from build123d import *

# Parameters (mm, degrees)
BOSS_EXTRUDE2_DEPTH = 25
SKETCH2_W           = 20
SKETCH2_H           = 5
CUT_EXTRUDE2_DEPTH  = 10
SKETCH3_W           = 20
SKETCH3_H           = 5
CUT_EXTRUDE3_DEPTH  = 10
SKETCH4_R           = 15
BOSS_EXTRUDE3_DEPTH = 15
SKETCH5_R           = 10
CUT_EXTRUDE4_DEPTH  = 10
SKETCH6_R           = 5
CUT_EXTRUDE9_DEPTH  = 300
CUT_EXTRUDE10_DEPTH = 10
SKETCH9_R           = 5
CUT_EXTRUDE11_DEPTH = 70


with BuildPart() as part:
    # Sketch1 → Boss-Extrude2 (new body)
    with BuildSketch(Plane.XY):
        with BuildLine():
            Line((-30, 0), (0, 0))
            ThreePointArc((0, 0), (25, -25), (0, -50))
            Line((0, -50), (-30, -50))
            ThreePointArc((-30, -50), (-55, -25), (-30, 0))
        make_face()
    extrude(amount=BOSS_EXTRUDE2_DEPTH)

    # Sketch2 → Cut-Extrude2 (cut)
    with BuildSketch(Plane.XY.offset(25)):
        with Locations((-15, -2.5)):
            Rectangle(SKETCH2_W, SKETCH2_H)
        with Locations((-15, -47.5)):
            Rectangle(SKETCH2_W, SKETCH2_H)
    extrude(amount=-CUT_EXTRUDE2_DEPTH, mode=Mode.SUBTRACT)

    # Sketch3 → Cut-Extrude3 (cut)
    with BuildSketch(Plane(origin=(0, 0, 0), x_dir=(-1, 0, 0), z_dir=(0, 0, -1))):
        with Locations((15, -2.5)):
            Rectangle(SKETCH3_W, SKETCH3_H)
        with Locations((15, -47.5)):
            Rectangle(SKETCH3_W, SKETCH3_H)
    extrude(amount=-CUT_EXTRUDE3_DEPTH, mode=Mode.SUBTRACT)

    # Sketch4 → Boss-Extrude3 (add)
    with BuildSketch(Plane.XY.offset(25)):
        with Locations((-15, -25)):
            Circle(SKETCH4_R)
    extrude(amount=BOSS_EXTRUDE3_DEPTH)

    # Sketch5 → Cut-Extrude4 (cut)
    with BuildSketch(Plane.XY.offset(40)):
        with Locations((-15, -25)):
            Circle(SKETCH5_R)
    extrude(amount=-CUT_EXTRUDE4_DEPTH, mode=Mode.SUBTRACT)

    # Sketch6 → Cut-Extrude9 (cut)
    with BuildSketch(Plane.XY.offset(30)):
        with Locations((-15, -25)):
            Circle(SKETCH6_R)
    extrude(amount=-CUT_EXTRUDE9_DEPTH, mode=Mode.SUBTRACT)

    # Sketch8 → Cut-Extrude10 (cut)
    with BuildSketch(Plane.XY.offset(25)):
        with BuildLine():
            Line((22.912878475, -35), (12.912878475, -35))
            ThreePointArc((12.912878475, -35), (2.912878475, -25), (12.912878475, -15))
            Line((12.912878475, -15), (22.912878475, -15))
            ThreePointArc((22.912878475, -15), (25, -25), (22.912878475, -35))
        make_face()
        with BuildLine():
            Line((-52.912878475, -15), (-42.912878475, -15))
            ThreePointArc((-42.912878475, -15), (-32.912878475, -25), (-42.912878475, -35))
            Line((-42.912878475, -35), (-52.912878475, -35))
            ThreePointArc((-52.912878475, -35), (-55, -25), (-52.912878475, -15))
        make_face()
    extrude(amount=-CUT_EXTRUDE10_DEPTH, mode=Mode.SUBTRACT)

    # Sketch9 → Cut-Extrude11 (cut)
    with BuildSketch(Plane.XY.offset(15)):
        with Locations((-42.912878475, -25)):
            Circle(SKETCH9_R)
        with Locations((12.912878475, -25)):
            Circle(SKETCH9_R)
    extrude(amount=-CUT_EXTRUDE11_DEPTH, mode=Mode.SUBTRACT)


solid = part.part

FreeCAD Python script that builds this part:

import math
import FreeCAD as App
import Part
import Sketcher
from FreeCAD import Vector

doc = App.newDocument("Part")
body = doc.addObject("PartDesign::Body", "Body")

# Sketch on XY plane
sketch1 = body.newObject("Sketcher::SketchObject", "Sketch")
sketch1.AttachmentSupport = (doc.getObject("XY_Plane"), [""])
sketch1.MapMode = "FlatFace"
sketch1.addGeometry([
    Part.LineSegment(Vector(0, 0, 0), Vector(-30, 0, 0)),
    Part.ArcOfCircle(Part.Circle(Vector(-30, -25, 0), Vector(0, 0, 1), 25), math.radians(90), math.radians(270)),
    Part.LineSegment(Vector(-30, -50, 0), Vector(0, -50, 0)),
    Part.ArcOfCircle(Part.Circle(Vector(0, -25, 0), Vector(0, 0, 1), 25), math.radians(-90), math.radians(90)),
], False)
sketch1.addConstraint([
    Sketcher.Constraint("Tangent", 0, 2, 1, 1),
    Sketcher.Constraint("Tangent", 1, 2, 2, 1),
    Sketcher.Constraint("Tangent", 2, 2, 3, 1),
    Sketcher.Constraint("Tangent", 3, 2, 0, 1),
    Sketcher.Constraint("Horizontal", 0),
    Sketcher.Constraint("Horizontal", 2),
    Sketcher.Constraint("Coincident", 3, 2, -1, 1),
    Sketcher.Constraint("Radius", 1, 25.0),
    Sketcher.Constraint("DistanceX", 0, 2, 0, 1, 30.0),
])
pad1 = body.newObject("PartDesign::Pad", "Pad")
pad1.Profile = sketch1
pad1.Length = 25

# Sketch on XY plane
sketch2 = body.newObject("Sketcher::SketchObject", "Sketch001")
sketch2.AttachmentSupport = (doc.getObject("XY_Plane"), [""])
sketch2.MapMode = "FlatFace"
sketch2.AttachmentOffset = App.Placement(Vector(0, 0, 25), App.Rotation())
sketch2.addGeometry([
    Part.LineSegment(Vector(-25, 0, 0), Vector(-25, -5, 0)),  # 0
    Part.LineSegment(Vector(-25, -5, 0), Vector(-5, -5, 0)),  # 1
    Part.LineSegment(Vector(-5, -5, 0), Vector(-5, 0, 0)),  # 2
    Part.LineSegment(Vector(-5, 0, 0), Vector(-25, 0, 0)),  # 3
    Part.LineSegment(Vector(-25, -45, 0), Vector(-25, -50, 0)),  # 4
    Part.LineSegment(Vector(-25, -50, 0), Vector(-5, -50, 0)),  # 5
    Part.LineSegment(Vector(-5, -50, 0), Vector(-5, -45, 0)),  # 6
    Part.LineSegment(Vector(-5, -45, 0), Vector(-25, -45, 0)),  # 7
], False)
sketch2.addConstraint([
    Sketcher.Constraint("Coincident", 0, 2, 1, 1),
    Sketcher.Constraint("Coincident", 1, 2, 2, 1),
    Sketcher.Constraint("Coincident", 2, 2, 3, 1),
    Sketcher.Constraint("Coincident", 3, 2, 0, 1),
    Sketcher.Constraint("Coincident", 4, 2, 5, 1),
    Sketcher.Constraint("Coincident", 5, 2, 6, 1),
    Sketcher.Constraint("Coincident", 6, 2, 7, 1),
    Sketcher.Constraint("Coincident", 7, 2, 4, 1),
    Sketcher.Constraint("Vertical", 0),
    Sketcher.Constraint("Horizontal", 1),
    Sketcher.Constraint("Vertical", 2),
    Sketcher.Constraint("Horizontal", 3),
    Sketcher.Constraint("Vertical", 4),
    Sketcher.Constraint("Horizontal", 5),
    Sketcher.Constraint("Vertical", 6),
    Sketcher.Constraint("Horizontal", 7),
    Sketcher.Constraint("PointOnObject", 2, 2, -1),
    Sketcher.Constraint("Vertical", 3, 2, 4, 2),
    Sketcher.Constraint("Vertical", 2, 2, 5, 2),
    Sketcher.Constraint("Equal", 2, 4),
    Sketcher.Constraint("DistanceX", 1, 1, 1, 2, 20.0),
    Sketcher.Constraint("DistanceY", 0, 2, 0, 1, 5.0),
    Sketcher.Constraint("DistanceX", 0, 2, -1, 1, 25.0),
    Sketcher.Constraint("DistanceY", 4, 2, -1, 1, 50.0),
])
pocket1 = body.newObject("PartDesign::Pocket", "Pocket")
pocket1.Profile = sketch2
pocket1.Length = 10

# Sketch on XY plane
sketch3 = body.newObject("Sketcher::SketchObject", "Sketch002")
sketch3.AttachmentSupport = (doc.getObject("XY_Plane"), [""])
sketch3.MapMode = "FlatFace"
sketch3.addGeometry([
    Part.LineSegment(Vector(-5, 0, 0), Vector(-5, -5, 0)),  # 0
    Part.LineSegment(Vector(-5, -5, 0), Vector(-25, -5, 0)),  # 1
    Part.LineSegment(Vector(-25, -5, 0), Vector(-25, 0, 0)),  # 2
    Part.LineSegment(Vector(-25, 0, 0), Vector(-5, 0, 0)),  # 3
    Part.LineSegment(Vector(-5, -45, 0), Vector(-5, -50, 0)),  # 4
    Part.LineSegment(Vector(-5, -50, 0), Vector(-25, -50, 0)),  # 5
    Part.LineSegment(Vector(-25, -50, 0), Vector(-25, -45, 0)),  # 6
    Part.LineSegment(Vector(-25, -45, 0), Vector(-5, -45, 0)),  # 7
], False)
sketch3.addConstraint([
    Sketcher.Constraint("Coincident", 0, 2, 1, 1),
    Sketcher.Constraint("Coincident", 1, 2, 2, 1),
    Sketcher.Constraint("Coincident", 2, 2, 3, 1),
    Sketcher.Constraint("Coincident", 3, 2, 0, 1),
    Sketcher.Constraint("Coincident", 4, 2, 5, 1),
    Sketcher.Constraint("Coincident", 5, 2, 6, 1),
    Sketcher.Constraint("Coincident", 6, 2, 7, 1),
    Sketcher.Constraint("Coincident", 7, 2, 4, 1),
    Sketcher.Constraint("Vertical", 0),
    Sketcher.Constraint("Horizontal", 1),
    Sketcher.Constraint("Vertical", 2),
    Sketcher.Constraint("Horizontal", 3),
    Sketcher.Constraint("Vertical", 4),
    Sketcher.Constraint("Horizontal", 5),
    Sketcher.Constraint("Vertical", 6),
    Sketcher.Constraint("Horizontal", 7),
    Sketcher.Constraint("PointOnObject", 2, 2, -1),
    Sketcher.Constraint("Vertical", 3, 2, 4, 2),
    Sketcher.Constraint("Vertical", 2, 2, 5, 2),
    Sketcher.Constraint("Equal", 2, 4),
    Sketcher.Constraint("DistanceX", 1, 2, 1, 1, 20.0),
    Sketcher.Constraint("DistanceY", 0, 2, 0, 1, 5.0),
    Sketcher.Constraint("DistanceX", 0, 2, -1, 1, 5.0),
    Sketcher.Constraint("DistanceY", 4, 2, -1, 1, 50.0),
])
pocket2 = body.newObject("PartDesign::Pocket", "Pocket001")
pocket2.Profile = sketch3
pocket2.Length = 10
pocket2.Reversed = True

# Sketch on XY plane
sketch4 = body.newObject("Sketcher::SketchObject", "Sketch003")
sketch4.AttachmentSupport = (doc.getObject("XY_Plane"), [""])
sketch4.MapMode = "FlatFace"
sketch4.AttachmentOffset = App.Placement(Vector(0, 0, 25), App.Rotation())
sketch4.addGeometry(Part.Circle(Vector(-15, -25, 0), Vector(0, 0, 1), 15), False)
sketch4.addConstraint([
    Sketcher.Constraint("Diameter", 0, 30.0),
    Sketcher.Constraint("DistanceX", 0, 3, -1, 1, 15.0),
    Sketcher.Constraint("DistanceY", 0, 3, -1, 1, 25.0),
])
pad2 = body.newObject("PartDesign::Pad", "Pad001")
pad2.Profile = sketch4
pad2.Length = 15

# Sketch on XY plane
sketch5 = body.newObject("Sketcher::SketchObject", "Sketch004")
sketch5.AttachmentSupport = (doc.getObject("XY_Plane"), [""])
sketch5.MapMode = "FlatFace"
sketch5.AttachmentOffset = App.Placement(Vector(0, 0, 40), App.Rotation())
sketch5.addGeometry(Part.Circle(Vector(-15, -25, 0), Vector(0, 0, 1), 10), False)
sketch5.addConstraint([
    Sketcher.Constraint("Diameter", 0, 20.0),
    Sketcher.Constraint("DistanceX", 0, 3, -1, 1, 15.0),
    Sketcher.Constraint("DistanceY", 0, 3, -1, 1, 25.0),
])
pocket3 = body.newObject("PartDesign::Pocket", "Pocket002")
pocket3.Profile = sketch5
pocket3.Length = 10

# Sketch on XY plane
sketch6 = body.newObject("Sketcher::SketchObject", "Sketch005")
sketch6.AttachmentSupport = (doc.getObject("XY_Plane"), [""])
sketch6.MapMode = "FlatFace"
sketch6.AttachmentOffset = App.Placement(Vector(0, 0, 30), App.Rotation())
sketch6.addGeometry(Part.Circle(Vector(-15, -25, 0), Vector(0, 0, 1), 5), False)
sketch6.addConstraint([
    Sketcher.Constraint("Diameter", 0, 10.0),
    Sketcher.Constraint("DistanceX", 0, 3, -1, 1, 15.0),
    Sketcher.Constraint("DistanceY", 0, 3, -1, 1, 25.0),
])
pocket4 = body.newObject("PartDesign::Pocket", "Pocket003")
pocket4.Profile = sketch6
pocket4.Length = 300

# Sketch on XY plane
sketch7 = body.newObject("Sketcher::SketchObject", "Sketch006")
sketch7.AttachmentSupport = (doc.getObject("XY_Plane"), [""])
sketch7.MapMode = "FlatFace"
sketch7.AttachmentOffset = App.Placement(Vector(0, 0, 25), App.Rotation())
sketch7.addGeometry([
    Part.LineSegment(Vector(13, -35, 0), Vector(23, -35, 0)),  # 0
    Part.ArcOfCircle(Part.Circle(Vector(0, -25, 0), Vector(0, 0, 1), 25), math.radians(-24), math.radians(24)),  # 1
    Part.LineSegment(Vector(23, -15, 0), Vector(13, -15, 0)),  # 2
    Part.ArcOfCircle(Part.Circle(Vector(13, -25, 0), Vector(0, 0, 1), 10), math.radians(90), math.radians(270)),  # 3
    Part.LineSegment(Vector(-43, -15, 0), Vector(-53, -15, 0)),  # 4
    Part.ArcOfCircle(Part.Circle(Vector(-30, -25, 0), Vector(0, 0, 1), 25), math.radians(156), math.radians(204)),  # 5
    Part.LineSegment(Vector(-53, -35, 0), Vector(-43, -35, 0)),  # 6
    Part.ArcOfCircle(Part.Circle(Vector(-43, -25, 0), Vector(0, 0, 1), 10), math.radians(-90), math.radians(90)),  # 7
], False)
sketch7.addConstraint([
    Sketcher.Constraint("Coincident", 0, 2, 1, 1),
    Sketcher.Constraint("Coincident", 1, 2, 2, 1),
    Sketcher.Constraint("Tangent", 2, 2, 3, 1),
    Sketcher.Constraint("Tangent", 3, 2, 0, 1),
    Sketcher.Constraint("Coincident", 4, 2, 5, 1),
    Sketcher.Constraint("Coincident", 5, 2, 6, 1),
    Sketcher.Constraint("Tangent", 6, 2, 7, 1),
    Sketcher.Constraint("Tangent", 7, 2, 4, 1),
    Sketcher.Constraint("Horizontal", 0),
    Sketcher.Constraint("Horizontal", 2),
    Sketcher.Constraint("Horizontal", 4),
    Sketcher.Constraint("Horizontal", 6),
    Sketcher.Constraint("Equal", 1, 5),
    Sketcher.Constraint("Equal", 3, 7),
    Sketcher.Constraint("PointOnObject", 1, 3, -2),
    Sketcher.Constraint("Horizontal", 1, 3, 3, 3),
    Sketcher.Constraint("Horizontal", 3, 3, 5, 3),
    Sketcher.Constraint("Horizontal", 5, 3, 7, 3),
    Sketcher.Constraint("Equal", 2, 4),
    Sketcher.Constraint("Radius", 1, 25.0),
    Sketcher.Constraint("Radius", 3, 10.0),
    Sketcher.Constraint("DistanceX", 0, 1, 0, 2, 10.0),
    Sketcher.Constraint("DistanceY", 1, 3, -1, 1, 25.0),
    Sketcher.Constraint("DistanceX", 5, 3, -1, 1, 30.0),
])
pocket5 = body.newObject("PartDesign::Pocket", "Pocket004")
pocket5.Profile = sketch7
pocket5.Length = 10

# Sketch on XY plane
sketch8 = body.newObject("Sketcher::SketchObject", "Sketch007")
sketch8.AttachmentSupport = (doc.getObject("XY_Plane"), [""])
sketch8.MapMode = "FlatFace"
sketch8.AttachmentOffset = App.Placement(Vector(0, 0, 15), App.Rotation())
sketch8.addGeometry([
    Part.Circle(Vector(-43, -25, 0), Vector(0, 0, 1), 5),
    Part.Circle(Vector(13, -25, 0), Vector(0, 0, 1), 5),
], False)
sketch8.addConstraint([
    Sketcher.Constraint("Equal", 0, 1),
    Sketcher.Constraint("Horizontal", 0, 3, 1, 3),
    Sketcher.Constraint("Diameter", 0, 10.0),
    Sketcher.Constraint("DistanceY", 0, 3, -1, 1, 25.0),
    Sketcher.Constraint("DistanceX", 0, 3, -1, 1, 42.912878),
    Sketcher.Constraint("DistanceX", -1, 1, 1, 3, 12.912878),
])
pocket6 = body.newObject("PartDesign::Pocket", "Pocket005")
pocket6.Profile = sketch8
pocket6.Length = 70

doc.recompute()
